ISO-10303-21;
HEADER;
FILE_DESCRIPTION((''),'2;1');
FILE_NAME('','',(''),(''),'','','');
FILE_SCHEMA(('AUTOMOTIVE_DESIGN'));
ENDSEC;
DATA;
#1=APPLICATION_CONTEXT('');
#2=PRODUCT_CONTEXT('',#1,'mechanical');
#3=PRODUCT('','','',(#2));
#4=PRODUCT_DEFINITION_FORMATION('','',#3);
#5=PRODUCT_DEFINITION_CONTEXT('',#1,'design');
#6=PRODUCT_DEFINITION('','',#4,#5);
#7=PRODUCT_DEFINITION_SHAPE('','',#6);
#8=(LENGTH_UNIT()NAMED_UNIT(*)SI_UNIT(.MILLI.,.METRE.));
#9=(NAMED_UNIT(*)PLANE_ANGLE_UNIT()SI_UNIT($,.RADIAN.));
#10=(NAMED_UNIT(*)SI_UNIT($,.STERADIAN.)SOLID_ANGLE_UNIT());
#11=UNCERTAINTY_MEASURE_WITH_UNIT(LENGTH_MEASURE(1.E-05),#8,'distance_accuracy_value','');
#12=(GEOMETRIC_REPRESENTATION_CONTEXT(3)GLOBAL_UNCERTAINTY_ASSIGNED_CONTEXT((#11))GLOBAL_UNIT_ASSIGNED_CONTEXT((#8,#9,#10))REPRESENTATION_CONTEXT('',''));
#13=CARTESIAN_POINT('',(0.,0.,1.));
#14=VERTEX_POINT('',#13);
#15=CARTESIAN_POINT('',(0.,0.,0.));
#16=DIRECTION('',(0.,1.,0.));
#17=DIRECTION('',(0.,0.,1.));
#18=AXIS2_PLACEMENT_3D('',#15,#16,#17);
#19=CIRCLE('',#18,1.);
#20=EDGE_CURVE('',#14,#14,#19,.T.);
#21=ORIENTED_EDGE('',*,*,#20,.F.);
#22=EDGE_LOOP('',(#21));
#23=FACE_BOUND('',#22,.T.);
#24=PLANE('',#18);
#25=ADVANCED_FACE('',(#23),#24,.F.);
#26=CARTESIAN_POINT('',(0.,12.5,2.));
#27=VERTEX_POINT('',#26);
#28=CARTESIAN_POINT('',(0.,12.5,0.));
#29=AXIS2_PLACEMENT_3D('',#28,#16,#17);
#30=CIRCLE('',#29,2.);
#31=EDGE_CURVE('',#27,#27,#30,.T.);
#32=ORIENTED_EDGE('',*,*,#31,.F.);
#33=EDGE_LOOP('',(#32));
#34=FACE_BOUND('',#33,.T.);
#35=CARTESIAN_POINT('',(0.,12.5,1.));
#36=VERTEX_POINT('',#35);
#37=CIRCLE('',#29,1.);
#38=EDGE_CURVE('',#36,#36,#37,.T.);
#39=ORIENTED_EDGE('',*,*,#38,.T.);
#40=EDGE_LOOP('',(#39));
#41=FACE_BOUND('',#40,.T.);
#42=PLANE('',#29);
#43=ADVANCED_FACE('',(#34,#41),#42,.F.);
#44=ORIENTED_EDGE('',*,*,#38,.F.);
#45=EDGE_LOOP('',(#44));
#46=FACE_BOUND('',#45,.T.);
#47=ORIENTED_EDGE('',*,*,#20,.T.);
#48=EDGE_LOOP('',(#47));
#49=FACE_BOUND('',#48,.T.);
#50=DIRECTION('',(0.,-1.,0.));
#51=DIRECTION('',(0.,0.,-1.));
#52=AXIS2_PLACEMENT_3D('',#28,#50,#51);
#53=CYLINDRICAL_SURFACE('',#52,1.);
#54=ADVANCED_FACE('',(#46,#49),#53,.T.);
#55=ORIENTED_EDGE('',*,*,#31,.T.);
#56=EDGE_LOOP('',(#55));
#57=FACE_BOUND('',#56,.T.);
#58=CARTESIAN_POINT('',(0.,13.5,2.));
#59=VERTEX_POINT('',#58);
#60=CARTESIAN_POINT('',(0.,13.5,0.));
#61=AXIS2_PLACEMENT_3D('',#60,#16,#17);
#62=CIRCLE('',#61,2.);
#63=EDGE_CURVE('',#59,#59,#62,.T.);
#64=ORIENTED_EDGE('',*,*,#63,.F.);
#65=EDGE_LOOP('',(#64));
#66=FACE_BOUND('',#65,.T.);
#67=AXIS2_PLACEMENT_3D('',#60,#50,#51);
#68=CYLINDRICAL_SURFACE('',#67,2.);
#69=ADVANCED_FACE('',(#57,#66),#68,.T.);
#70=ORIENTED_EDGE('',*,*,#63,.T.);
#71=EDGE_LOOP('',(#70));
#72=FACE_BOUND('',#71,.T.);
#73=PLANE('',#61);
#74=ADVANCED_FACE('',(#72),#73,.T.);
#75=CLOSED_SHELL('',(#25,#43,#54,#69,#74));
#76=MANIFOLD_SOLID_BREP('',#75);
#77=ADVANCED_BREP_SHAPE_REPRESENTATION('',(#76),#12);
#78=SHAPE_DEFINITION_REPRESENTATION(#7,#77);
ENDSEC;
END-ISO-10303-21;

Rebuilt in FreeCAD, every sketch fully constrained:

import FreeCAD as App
import Part
import Sketcher

doc = App.newDocument("Part")
body = doc.addObject("PartDesign::Body", "Body")

# Sketch on XZ plane
sketch1 = doc.addObject("Sketcher::SketchObject", "Sketch")
body.addObject(sketch1)
sketch1.AttachmentSupport = (doc.XZ_Plane, [""])
sketch1.MapMode = "FlatFace"
sketch1.addGeometry(Part.Circle(App.Vector(0, 0, 0), App.Vector(0, 0, 1), 1), False)
sketch1.addConstraint([
    Sketcher.Constraint("Coincident", 0, 3, -1, 1),
    Sketcher.Constraint("Diameter", 0, 2.0),
])
pad1 = doc.addObject("PartDesign::Pad", "Pad")
body.addObject(pad1)
pad1.Profile = sketch1
pad1.Length = 12.5
pad1.Reversed = True

# Sketch on XZ plane
sketch2 = doc.addObject("Sketcher::SketchObject", "Sketch001")
body.addObject(sketch2)
sketch2.AttachmentSupport = (doc.XZ_Plane, [""])
sketch2.MapMode = "FlatFace"
sketch2.AttachmentOffset = App.Placement(App.Vector(0, 0, -12.5), App.Rotation())
sketch2.addGeometry(Part.Circle(App.Vector(0, 0, 0), App.Vector(0, 0, 1), 2), False)
sketch2.addConstraint([
    Sketcher.Constraint("Coincident", 0, 3, -1, 1),
    Sketcher.Constraint("Diameter", 0, 4.0),
])
pad2 = doc.addObject("PartDesign::Pad", "Pad001")
body.addObject(pad2)
pad2.Profile = sketch2
pad2.Length = 1
pad2.Reversed = True

doc.recompute()
